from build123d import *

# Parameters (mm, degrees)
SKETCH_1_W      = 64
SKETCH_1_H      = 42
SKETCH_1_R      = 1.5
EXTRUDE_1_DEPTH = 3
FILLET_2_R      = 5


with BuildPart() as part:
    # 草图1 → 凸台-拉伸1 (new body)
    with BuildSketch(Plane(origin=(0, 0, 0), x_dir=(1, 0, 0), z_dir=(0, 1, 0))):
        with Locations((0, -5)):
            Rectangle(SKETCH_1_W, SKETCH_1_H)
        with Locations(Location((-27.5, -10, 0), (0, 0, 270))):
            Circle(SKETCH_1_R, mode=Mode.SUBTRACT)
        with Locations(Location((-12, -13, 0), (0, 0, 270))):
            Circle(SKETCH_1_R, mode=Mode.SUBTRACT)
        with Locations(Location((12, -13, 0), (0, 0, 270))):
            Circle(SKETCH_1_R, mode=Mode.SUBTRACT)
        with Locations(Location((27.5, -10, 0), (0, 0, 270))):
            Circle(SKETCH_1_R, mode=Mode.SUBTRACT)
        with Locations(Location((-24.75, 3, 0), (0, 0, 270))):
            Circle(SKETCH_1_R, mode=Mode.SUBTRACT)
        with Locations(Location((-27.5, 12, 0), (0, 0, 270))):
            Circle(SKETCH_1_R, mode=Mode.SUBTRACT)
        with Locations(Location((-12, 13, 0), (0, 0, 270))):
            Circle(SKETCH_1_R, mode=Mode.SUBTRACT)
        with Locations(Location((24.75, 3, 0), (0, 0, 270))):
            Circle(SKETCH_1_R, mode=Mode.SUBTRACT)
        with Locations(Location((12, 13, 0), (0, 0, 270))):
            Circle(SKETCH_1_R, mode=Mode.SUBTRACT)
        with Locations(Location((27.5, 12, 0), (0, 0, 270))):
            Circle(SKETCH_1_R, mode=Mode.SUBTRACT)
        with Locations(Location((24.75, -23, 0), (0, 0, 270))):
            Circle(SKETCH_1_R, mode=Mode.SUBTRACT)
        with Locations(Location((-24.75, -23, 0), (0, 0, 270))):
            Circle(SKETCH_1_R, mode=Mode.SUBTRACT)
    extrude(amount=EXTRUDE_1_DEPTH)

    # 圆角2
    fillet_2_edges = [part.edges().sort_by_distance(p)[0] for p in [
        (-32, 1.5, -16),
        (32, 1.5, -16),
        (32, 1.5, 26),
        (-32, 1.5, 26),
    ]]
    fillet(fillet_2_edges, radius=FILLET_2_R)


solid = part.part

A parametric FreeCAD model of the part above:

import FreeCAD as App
import Part
import Sketcher

V = App.Vector
Q = App.Units.Quantity


def edges_at(feature, points):
    """Names of the edges that pass closest to the given points."""
    edges = feature.Shape.Edges
    near = lambda p: min(range(len(edges)), key=lambda i: edges[i].distToShape(Part.Vertex(*p))[0])
    return sorted({f"Edge{near(p) + 1}" for p in points})


def add_polygon(sketch, points):
    """Adds a closed chain of lines whose ends are joined by coincident constraints."""
    first, n = sketch.GeometryCount, len(points)
    for a, b in zip(points, points[1:] + points[:1]):
        sketch.addGeometry(Part.LineSegment(App.Vector(*a, 0), App.Vector(*b, 0)), False)
    for i in range(n):
        sketch.addConstraint(Sketcher.Constraint("Coincident", first + i, 2, first + (i + 1) % n, 1))

doc = App.newDocument("Part")
body = doc.addObject("PartDesign::Body", "Body")

# Sketch on XZ plane
sketch1 = body.newObject("Sketcher::SketchObject", "Sketch")
sketch1.AttachmentSupport = (doc.getObject("XZ_Plane"), [""])
sketch1.MapMode = "FlatFace"
add_polygon(sketch1, [(-32, -16), (-32, 26), (32, 26), (32, -16)])  # lines 0-3
sketch1.addGeometry(Part.Circle(V(-24.75, 23, 0), V(0, 0, 1), 1.5), False)  # 4
sketch1.addGeometry(Part.Circle(V(-27.5, 10, 0), V(0, 0, 1), 1.5), False)  # 5
sketch1.addGeometry(Part.Circle(V(-12, 13, 0), V(0, 0, 1), 1.5), False)  # 6
sketch1.addGeometry(Part.Circle(V(24.75, 23, 0), V(0, 0, 1), 1.5), False)  # 7
sketch1.addGeometry(Part.Circle(V(12, 13, 0), V(0, 0, 1), 1.5), False)  # 8
sketch1.addGeometry(Part.Circle(V(27.5, 10, 0), V(0, 0, 1), 1.5), False)  # 9
sketch1.addGeometry(Part.Circle(V(-24.75, -3, 0), V(0, 0, 1), 1.5), False)  # 10
sketch1.addGeometry(Part.Circle(V(-27.5, -12, 0), V(0, 0, 1), 1.5), False)  # 11
sketch1.addGeometry(Part.Circle(V(-12, -13, 0), V(0, 0, 1), 1.5), False)  # 12
sketch1.addGeometry(Part.Circle(V(24.75, -3, 0), V(0, 0, 1), 1.5), False)  # 13
sketch1.addGeometry(Part.Circle(V(12, -13, 0), V(0, 0, 1), 1.5), False)  # 14
sketch1.addGeometry(Part.Circle(V(27.5, -12, 0), V(0, 0, 1), 1.5), False)  # 15
sketch1.addConstraint(Sketcher.Constraint("Vertical", 0))
sketch1.addConstraint(Sketcher.Constraint("Horizontal", 1))
sketch1.addConstraint(Sketcher.Constraint("Vertical", 2))
sketch1.addConstraint(Sketcher.Constraint("Horizontal", 3))
sketch1.addConstraint(Sketcher.Constraint("Equal", 4, 5))
sketch1.addConstraint(Sketcher.Constraint("Equal", 5, 6))
sketch1.addConstraint(Sketcher.Constraint("Equal", 6, 7))
sketch1.addConstraint(Sketcher.Constraint("Equal", 7, 8))
sketch1.addConstraint(Sketcher.Constraint("Equal", 8, 9))
sketch1.addConstraint(Sketcher.Constraint("Equal", 9, 10))
sketch1.addConstraint(Sketcher.Constraint("Equal", 10, 11))
sketch1.addConstraint(Sketcher.Constraint("Equal", 11, 12))
sketch1.addConstraint(Sketcher.Constraint("Equal", 12, 13))
sketch1.addConstraint(Sketcher.Constraint("Equal", 13, 14))
sketch1.addConstraint(Sketcher.Constraint("Equal", 14, 15))
sketch1.addConstraint(Sketcher.Constraint("Symmetric", 8, 3, 12, 3, -1, 1))
sketch1.addConstraint(Sketcher.Constraint("Symmetric", 6, 3, 14, 3, -1, 1))
sketch1.addConstraint(Sketcher.Constraint("Symmetric", 4, 3, 7, 3, -2))
sketch1.addConstraint(Sketcher.Constraint("Symmetric", 6, 3, 8, 3, -2))
sketch1.addConstraint(Sketcher.Constraint("Symmetric", 5, 3, 9, 3, -2))
sketch1.addConstraint(Sketcher.Constraint("Symmetric", 10, 3, 13, 3, -2))
sketch1.addConstraint(Sketcher.Constraint("Symmetric", 11, 3, 15, 3, -2))
sketch1.addConstraint(Sketcher.Constraint("Vertical", 4, 3, 10, 3))
sketch1.addConstraint(Sketcher.Constraint("Vertical", 5, 3, 11, 3))
sketch1.addConstraint(Sketcher.Constraint("Diameter", 4, Q("3 mm")))
sketch1.addConstraint(Sketcher.Constraint("DistanceX", 1, 1, 1, 2, Q("64 mm")))
sketch1.addConstraint(Sketcher.Constraint("DistanceY", 0, 1, 0, 2, Q("42 mm")))
sketch1.addConstraint(Sketcher.Constraint("DistanceY", -1, 1, 4, 3, Q("23 mm")))
sketch1.addConstraint(Sketcher.Constraint("DistanceY", -1, 1, 5, 3, Q("10 mm")))
sketch1.addConstraint(Sketcher.Constraint("DistanceX", 6, 3, -1, 1, Q("12 mm")))
sketch1.addConstraint(Sketcher.Constraint("DistanceY", -1, 1, 6, 3, Q("13 mm")))
sketch1.addConstraint(Sketcher.Constraint("DistanceY", 10, 3, -1, 1, Q("3 mm")))
sketch1.addConstraint(Sketcher.Constraint("DistanceY", 11, 3, -1, 1, Q("12 mm")))
sketch1.addConstraint(Sketcher.Constraint("DistanceX", 0, 2, -1, 1, Q("32 mm")))
sketch1.addConstraint(Sketcher.Constraint("DistanceY", -1, 1, 0, 2, Q("26 mm")))
sketch1.addConstraint(Sketcher.Constraint("DistanceX", 5, 3, 9, 3, Q("55 mm")))
sketch1.addConstraint(Sketcher.Constraint("DistanceX", 4, 3, 7, 3, Q("49.5 mm")))
pad1 = body.newObject("PartDesign::Pad", "Pad")
pad1.Profile = sketch1
pad1.Length = 3
pad1.Reversed = True
doc.recompute()

fillet = body.newObject("PartDesign::Fillet", "Fillet")
fillet.Base = (pad1, edges_at(pad1, [
    (-32, 1.5, -16),
    (32, 1.5, -16),
    (32, 1.5, 26),
    (-32, 1.5, 26),
]))
fillet.Radius = 5

doc.recompute()
